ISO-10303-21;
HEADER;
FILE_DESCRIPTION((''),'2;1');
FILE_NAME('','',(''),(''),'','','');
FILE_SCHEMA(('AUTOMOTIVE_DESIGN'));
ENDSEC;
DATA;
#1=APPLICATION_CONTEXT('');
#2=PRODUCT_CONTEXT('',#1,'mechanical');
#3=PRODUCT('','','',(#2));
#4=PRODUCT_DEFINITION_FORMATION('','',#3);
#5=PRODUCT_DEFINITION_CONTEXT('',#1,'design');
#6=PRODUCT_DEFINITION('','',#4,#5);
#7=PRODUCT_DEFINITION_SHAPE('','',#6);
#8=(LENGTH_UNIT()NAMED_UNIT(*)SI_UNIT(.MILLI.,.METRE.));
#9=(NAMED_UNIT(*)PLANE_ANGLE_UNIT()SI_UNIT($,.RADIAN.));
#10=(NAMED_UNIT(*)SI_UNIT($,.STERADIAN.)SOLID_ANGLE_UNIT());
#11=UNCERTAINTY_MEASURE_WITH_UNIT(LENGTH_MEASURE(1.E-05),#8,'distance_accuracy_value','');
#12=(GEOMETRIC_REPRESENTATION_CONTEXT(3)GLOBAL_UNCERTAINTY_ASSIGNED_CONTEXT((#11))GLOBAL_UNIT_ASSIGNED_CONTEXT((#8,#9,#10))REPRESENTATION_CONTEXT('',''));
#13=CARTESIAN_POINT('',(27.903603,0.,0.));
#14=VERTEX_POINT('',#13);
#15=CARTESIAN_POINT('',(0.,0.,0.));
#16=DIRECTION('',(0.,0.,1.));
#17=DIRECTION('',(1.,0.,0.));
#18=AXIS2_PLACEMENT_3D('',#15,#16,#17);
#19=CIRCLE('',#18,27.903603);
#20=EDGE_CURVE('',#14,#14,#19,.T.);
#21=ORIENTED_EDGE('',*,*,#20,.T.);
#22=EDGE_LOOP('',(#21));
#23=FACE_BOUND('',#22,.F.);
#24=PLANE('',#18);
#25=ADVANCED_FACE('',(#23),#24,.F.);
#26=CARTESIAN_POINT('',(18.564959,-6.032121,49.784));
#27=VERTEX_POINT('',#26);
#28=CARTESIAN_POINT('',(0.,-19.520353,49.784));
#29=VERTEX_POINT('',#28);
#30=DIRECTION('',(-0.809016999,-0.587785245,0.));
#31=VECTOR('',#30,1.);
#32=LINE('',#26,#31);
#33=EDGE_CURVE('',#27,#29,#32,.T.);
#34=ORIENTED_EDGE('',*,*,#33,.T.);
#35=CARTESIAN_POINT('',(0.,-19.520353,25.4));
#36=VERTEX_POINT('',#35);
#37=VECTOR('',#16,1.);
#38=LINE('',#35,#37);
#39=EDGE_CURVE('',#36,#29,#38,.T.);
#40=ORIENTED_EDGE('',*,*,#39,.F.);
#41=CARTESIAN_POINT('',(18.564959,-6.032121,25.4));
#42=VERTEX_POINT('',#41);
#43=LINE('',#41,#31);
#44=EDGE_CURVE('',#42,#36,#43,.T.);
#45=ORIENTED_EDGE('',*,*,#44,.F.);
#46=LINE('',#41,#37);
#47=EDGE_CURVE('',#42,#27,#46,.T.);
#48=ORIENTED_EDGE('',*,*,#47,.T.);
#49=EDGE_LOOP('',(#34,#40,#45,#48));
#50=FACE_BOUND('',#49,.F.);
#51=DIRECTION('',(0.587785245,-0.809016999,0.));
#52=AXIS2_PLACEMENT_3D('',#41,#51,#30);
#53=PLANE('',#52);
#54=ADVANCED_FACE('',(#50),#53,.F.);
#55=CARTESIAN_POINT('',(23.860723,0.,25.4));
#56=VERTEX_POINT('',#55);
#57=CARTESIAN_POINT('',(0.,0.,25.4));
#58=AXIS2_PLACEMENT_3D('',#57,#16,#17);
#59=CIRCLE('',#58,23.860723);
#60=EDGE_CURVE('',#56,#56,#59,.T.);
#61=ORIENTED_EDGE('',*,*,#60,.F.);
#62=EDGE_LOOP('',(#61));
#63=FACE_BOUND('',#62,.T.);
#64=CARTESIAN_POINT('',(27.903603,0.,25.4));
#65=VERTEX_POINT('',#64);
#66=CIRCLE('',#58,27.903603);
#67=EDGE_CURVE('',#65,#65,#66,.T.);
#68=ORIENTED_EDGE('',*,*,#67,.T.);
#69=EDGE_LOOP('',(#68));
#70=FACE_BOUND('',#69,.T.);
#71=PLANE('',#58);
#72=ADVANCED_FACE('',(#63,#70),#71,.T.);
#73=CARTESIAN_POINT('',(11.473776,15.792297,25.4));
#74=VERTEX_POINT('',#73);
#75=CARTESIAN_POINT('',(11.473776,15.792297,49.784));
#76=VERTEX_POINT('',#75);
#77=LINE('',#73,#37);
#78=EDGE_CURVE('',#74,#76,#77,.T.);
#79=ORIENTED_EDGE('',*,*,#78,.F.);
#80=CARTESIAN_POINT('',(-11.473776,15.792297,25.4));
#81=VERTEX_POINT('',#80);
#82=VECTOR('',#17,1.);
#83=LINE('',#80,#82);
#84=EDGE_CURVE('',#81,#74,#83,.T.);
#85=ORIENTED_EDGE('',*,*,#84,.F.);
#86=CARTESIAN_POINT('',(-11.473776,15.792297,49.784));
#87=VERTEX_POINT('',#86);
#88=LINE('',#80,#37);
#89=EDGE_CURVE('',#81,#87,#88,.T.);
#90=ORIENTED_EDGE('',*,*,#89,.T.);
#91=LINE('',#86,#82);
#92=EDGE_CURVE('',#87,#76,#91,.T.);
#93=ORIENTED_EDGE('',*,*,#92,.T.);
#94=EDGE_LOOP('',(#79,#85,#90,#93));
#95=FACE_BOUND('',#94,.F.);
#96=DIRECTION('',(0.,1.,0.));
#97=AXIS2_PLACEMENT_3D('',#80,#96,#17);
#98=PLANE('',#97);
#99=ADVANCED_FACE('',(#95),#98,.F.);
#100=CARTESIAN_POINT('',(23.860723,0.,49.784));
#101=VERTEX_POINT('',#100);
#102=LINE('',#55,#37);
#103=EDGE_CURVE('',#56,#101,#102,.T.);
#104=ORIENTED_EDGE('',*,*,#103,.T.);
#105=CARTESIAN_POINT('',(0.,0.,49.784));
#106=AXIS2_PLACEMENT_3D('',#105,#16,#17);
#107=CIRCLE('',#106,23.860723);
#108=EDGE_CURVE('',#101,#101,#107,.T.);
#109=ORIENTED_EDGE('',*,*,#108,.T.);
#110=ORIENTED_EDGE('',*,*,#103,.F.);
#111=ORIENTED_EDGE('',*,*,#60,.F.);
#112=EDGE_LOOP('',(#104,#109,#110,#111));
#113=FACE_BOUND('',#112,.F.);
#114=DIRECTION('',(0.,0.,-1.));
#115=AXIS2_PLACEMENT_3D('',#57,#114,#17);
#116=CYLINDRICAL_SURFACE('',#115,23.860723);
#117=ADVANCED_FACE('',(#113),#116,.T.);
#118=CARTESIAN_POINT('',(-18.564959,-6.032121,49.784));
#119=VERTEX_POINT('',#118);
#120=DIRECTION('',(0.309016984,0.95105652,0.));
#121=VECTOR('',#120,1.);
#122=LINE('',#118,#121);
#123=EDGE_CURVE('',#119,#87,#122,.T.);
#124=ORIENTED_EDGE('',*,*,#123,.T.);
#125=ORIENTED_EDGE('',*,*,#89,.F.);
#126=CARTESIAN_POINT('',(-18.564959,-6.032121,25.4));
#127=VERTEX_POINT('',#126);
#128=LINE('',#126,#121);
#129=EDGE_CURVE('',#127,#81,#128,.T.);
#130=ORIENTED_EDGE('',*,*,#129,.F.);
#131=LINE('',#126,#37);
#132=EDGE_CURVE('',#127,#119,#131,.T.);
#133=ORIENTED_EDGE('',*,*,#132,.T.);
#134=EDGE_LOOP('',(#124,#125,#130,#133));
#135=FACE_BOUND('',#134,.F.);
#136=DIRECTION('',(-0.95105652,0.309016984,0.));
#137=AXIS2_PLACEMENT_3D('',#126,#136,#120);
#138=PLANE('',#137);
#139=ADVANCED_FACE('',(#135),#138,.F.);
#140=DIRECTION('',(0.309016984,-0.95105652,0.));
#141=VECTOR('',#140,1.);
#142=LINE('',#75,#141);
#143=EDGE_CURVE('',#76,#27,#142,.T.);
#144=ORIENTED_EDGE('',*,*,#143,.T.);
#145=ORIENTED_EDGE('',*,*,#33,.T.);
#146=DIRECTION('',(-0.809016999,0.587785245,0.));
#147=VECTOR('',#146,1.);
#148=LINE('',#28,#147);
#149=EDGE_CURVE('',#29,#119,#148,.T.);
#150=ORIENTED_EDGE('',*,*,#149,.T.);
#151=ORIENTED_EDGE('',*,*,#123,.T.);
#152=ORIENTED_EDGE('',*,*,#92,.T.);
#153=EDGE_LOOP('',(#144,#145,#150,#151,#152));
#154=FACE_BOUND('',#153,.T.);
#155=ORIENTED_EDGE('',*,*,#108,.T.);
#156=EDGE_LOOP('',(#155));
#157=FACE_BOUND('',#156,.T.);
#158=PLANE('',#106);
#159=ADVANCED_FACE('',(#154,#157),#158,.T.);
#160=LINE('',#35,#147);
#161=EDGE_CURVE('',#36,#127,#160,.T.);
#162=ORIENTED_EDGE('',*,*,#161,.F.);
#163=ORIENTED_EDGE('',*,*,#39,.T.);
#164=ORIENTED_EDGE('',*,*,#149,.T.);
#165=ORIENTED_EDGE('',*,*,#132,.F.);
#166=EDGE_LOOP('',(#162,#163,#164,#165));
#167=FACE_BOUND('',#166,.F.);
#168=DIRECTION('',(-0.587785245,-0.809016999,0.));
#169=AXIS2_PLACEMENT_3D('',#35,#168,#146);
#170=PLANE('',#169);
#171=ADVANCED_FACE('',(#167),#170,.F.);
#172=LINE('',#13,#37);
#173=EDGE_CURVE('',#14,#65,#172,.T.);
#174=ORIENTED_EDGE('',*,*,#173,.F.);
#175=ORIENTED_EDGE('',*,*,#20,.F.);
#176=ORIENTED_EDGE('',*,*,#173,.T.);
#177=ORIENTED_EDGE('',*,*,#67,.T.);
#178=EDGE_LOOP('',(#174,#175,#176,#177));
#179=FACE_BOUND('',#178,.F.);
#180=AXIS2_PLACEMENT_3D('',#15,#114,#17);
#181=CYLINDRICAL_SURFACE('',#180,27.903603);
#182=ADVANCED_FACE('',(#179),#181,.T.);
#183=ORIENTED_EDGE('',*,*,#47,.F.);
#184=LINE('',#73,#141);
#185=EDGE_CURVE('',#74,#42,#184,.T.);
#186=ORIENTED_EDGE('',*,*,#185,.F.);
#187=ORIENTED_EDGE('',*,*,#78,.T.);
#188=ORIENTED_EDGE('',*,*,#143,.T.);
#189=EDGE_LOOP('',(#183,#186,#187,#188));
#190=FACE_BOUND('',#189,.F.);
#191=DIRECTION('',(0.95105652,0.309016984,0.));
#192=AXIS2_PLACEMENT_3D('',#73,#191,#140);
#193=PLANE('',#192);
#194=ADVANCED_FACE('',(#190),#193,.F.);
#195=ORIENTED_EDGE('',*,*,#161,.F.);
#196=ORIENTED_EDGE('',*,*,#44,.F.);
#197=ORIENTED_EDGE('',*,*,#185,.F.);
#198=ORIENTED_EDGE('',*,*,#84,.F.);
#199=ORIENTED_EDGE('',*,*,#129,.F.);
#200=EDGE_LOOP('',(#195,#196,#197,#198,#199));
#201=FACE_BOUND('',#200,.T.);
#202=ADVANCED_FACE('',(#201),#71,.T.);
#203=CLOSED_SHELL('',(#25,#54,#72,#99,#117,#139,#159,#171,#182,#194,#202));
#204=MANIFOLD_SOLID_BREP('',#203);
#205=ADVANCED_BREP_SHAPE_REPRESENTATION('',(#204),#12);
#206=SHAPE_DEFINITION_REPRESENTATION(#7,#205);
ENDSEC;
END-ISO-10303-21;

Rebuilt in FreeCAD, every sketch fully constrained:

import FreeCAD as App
import Part
import Sketcher
Q = App.Units.Quantity

doc = App.newDocument("Part")
params = doc.addObject("Spreadsheet::Sheet", "Params")
for row, (alias, value) in enumerate([
    ("pad1_length", "1 in"),
    ("pad2_length", "0.96 in"),
], start=1):
    params.set(f"A{row}", alias)
    params.set(f"B{row}", "=" + value)
    params.setAlias(f"B{row}", alias)

body = doc.addObject("PartDesign::Body", "Body")

# Sketch on XY plane
sketch1 = body.newObject("Sketcher::SketchObject", "Sketch")
sketch1.AttachmentSupport = (doc.getObject("XY_Plane"), [""])
sketch1.MapMode = "FlatFace"
sketch1.addGeometry(Part.Circle(App.Vector(0, 0, 0), App.Vector(0, 0, 1), 28), False)
sketch1.addConstraint([
    Sketcher.Constraint("Coincident", 0, 3, -1, 1),
    Sketcher.Constraint("Diameter", 0, 55.807206),
])
pad1 = body.newObject("PartDesign::Pad", "Pad")
pad1.Profile = sketch1
pad1.setExpression("Length", "Params.pad1_length")

# Sketch on XY plane
sketch2 = body.newObject("Sketcher::SketchObject", "Sketch001")
sketch2.AttachmentSupport = (doc.getObject("XY_Plane"), [""])
sketch2.MapMode = "FlatFace"
sketch2.AttachmentOffset = App.Placement(App.Vector(0, 0, 1 * 25.4), App.Rotation())
sketch2.addGeometry([
    Part.Circle(App.Vector(0, 0, 0), App.Vector(0, 0, 1), 24),  # 0
    Part.LineSegment(App.Vector(0, -20, 0), App.Vector(-19, -6, 0)),  # 1
    Part.LineSegment(App.Vector(-19, -6, 0), App.Vector(-11, 16, 0)),  # 2
    Part.LineSegment(App.Vector(-11, 16, 0), App.Vector(11, 16, 0)),  # 3
    Part.LineSegment(App.Vector(11, 16, 0), App.Vector(19, -6, 0)),  # 4
    Part.LineSegment(App.Vector(19, -6, 0), App.Vector(0, -20, 0)),  # 5
], False)
sketch2.addConstraint([
    Sketcher.Constraint("Coincident", 1, 2, 2, 1),
    Sketcher.Constraint("Coincident", 2, 2, 3, 1),
    Sketcher.Constraint("Coincident", 3, 2, 4, 1),
    Sketcher.Constraint("Coincident", 4, 2, 5, 1),
    Sketcher.Constraint("Coincident", 5, 2, 1, 1),
    Sketcher.Constraint("Horizontal", 3),
    Sketcher.Constraint("Coincident", 0, 3, -1, 1),
    Sketcher.Constraint("Symmetric", 1, 2, 4, 2, -2),
    Sketcher.Constraint("PointOnObject", 5, 2, -2),
    Sketcher.Constraint("Equal", 1, 2),
    Sketcher.Constraint("Equal", 2, 4),
    Sketcher.Constraint("Angle", 1, Q("144 deg")),
    Sketcher.Constraint("Angle", 2, Q("72.000001 deg")),
    Sketcher.Constraint("Diameter", 0, 47.721446),
    Sketcher.Constraint("Distance", 1, 22.947551),
    Sketcher.Constraint("DistanceY", 1, 2, -1, 1, 6.032121),
])
pad2 = body.newObject("PartDesign::Pad", "Pad001")
pad2.Profile = sketch2
pad2.setExpression("Length", "Params.pad2_length")

doc.recompute()
